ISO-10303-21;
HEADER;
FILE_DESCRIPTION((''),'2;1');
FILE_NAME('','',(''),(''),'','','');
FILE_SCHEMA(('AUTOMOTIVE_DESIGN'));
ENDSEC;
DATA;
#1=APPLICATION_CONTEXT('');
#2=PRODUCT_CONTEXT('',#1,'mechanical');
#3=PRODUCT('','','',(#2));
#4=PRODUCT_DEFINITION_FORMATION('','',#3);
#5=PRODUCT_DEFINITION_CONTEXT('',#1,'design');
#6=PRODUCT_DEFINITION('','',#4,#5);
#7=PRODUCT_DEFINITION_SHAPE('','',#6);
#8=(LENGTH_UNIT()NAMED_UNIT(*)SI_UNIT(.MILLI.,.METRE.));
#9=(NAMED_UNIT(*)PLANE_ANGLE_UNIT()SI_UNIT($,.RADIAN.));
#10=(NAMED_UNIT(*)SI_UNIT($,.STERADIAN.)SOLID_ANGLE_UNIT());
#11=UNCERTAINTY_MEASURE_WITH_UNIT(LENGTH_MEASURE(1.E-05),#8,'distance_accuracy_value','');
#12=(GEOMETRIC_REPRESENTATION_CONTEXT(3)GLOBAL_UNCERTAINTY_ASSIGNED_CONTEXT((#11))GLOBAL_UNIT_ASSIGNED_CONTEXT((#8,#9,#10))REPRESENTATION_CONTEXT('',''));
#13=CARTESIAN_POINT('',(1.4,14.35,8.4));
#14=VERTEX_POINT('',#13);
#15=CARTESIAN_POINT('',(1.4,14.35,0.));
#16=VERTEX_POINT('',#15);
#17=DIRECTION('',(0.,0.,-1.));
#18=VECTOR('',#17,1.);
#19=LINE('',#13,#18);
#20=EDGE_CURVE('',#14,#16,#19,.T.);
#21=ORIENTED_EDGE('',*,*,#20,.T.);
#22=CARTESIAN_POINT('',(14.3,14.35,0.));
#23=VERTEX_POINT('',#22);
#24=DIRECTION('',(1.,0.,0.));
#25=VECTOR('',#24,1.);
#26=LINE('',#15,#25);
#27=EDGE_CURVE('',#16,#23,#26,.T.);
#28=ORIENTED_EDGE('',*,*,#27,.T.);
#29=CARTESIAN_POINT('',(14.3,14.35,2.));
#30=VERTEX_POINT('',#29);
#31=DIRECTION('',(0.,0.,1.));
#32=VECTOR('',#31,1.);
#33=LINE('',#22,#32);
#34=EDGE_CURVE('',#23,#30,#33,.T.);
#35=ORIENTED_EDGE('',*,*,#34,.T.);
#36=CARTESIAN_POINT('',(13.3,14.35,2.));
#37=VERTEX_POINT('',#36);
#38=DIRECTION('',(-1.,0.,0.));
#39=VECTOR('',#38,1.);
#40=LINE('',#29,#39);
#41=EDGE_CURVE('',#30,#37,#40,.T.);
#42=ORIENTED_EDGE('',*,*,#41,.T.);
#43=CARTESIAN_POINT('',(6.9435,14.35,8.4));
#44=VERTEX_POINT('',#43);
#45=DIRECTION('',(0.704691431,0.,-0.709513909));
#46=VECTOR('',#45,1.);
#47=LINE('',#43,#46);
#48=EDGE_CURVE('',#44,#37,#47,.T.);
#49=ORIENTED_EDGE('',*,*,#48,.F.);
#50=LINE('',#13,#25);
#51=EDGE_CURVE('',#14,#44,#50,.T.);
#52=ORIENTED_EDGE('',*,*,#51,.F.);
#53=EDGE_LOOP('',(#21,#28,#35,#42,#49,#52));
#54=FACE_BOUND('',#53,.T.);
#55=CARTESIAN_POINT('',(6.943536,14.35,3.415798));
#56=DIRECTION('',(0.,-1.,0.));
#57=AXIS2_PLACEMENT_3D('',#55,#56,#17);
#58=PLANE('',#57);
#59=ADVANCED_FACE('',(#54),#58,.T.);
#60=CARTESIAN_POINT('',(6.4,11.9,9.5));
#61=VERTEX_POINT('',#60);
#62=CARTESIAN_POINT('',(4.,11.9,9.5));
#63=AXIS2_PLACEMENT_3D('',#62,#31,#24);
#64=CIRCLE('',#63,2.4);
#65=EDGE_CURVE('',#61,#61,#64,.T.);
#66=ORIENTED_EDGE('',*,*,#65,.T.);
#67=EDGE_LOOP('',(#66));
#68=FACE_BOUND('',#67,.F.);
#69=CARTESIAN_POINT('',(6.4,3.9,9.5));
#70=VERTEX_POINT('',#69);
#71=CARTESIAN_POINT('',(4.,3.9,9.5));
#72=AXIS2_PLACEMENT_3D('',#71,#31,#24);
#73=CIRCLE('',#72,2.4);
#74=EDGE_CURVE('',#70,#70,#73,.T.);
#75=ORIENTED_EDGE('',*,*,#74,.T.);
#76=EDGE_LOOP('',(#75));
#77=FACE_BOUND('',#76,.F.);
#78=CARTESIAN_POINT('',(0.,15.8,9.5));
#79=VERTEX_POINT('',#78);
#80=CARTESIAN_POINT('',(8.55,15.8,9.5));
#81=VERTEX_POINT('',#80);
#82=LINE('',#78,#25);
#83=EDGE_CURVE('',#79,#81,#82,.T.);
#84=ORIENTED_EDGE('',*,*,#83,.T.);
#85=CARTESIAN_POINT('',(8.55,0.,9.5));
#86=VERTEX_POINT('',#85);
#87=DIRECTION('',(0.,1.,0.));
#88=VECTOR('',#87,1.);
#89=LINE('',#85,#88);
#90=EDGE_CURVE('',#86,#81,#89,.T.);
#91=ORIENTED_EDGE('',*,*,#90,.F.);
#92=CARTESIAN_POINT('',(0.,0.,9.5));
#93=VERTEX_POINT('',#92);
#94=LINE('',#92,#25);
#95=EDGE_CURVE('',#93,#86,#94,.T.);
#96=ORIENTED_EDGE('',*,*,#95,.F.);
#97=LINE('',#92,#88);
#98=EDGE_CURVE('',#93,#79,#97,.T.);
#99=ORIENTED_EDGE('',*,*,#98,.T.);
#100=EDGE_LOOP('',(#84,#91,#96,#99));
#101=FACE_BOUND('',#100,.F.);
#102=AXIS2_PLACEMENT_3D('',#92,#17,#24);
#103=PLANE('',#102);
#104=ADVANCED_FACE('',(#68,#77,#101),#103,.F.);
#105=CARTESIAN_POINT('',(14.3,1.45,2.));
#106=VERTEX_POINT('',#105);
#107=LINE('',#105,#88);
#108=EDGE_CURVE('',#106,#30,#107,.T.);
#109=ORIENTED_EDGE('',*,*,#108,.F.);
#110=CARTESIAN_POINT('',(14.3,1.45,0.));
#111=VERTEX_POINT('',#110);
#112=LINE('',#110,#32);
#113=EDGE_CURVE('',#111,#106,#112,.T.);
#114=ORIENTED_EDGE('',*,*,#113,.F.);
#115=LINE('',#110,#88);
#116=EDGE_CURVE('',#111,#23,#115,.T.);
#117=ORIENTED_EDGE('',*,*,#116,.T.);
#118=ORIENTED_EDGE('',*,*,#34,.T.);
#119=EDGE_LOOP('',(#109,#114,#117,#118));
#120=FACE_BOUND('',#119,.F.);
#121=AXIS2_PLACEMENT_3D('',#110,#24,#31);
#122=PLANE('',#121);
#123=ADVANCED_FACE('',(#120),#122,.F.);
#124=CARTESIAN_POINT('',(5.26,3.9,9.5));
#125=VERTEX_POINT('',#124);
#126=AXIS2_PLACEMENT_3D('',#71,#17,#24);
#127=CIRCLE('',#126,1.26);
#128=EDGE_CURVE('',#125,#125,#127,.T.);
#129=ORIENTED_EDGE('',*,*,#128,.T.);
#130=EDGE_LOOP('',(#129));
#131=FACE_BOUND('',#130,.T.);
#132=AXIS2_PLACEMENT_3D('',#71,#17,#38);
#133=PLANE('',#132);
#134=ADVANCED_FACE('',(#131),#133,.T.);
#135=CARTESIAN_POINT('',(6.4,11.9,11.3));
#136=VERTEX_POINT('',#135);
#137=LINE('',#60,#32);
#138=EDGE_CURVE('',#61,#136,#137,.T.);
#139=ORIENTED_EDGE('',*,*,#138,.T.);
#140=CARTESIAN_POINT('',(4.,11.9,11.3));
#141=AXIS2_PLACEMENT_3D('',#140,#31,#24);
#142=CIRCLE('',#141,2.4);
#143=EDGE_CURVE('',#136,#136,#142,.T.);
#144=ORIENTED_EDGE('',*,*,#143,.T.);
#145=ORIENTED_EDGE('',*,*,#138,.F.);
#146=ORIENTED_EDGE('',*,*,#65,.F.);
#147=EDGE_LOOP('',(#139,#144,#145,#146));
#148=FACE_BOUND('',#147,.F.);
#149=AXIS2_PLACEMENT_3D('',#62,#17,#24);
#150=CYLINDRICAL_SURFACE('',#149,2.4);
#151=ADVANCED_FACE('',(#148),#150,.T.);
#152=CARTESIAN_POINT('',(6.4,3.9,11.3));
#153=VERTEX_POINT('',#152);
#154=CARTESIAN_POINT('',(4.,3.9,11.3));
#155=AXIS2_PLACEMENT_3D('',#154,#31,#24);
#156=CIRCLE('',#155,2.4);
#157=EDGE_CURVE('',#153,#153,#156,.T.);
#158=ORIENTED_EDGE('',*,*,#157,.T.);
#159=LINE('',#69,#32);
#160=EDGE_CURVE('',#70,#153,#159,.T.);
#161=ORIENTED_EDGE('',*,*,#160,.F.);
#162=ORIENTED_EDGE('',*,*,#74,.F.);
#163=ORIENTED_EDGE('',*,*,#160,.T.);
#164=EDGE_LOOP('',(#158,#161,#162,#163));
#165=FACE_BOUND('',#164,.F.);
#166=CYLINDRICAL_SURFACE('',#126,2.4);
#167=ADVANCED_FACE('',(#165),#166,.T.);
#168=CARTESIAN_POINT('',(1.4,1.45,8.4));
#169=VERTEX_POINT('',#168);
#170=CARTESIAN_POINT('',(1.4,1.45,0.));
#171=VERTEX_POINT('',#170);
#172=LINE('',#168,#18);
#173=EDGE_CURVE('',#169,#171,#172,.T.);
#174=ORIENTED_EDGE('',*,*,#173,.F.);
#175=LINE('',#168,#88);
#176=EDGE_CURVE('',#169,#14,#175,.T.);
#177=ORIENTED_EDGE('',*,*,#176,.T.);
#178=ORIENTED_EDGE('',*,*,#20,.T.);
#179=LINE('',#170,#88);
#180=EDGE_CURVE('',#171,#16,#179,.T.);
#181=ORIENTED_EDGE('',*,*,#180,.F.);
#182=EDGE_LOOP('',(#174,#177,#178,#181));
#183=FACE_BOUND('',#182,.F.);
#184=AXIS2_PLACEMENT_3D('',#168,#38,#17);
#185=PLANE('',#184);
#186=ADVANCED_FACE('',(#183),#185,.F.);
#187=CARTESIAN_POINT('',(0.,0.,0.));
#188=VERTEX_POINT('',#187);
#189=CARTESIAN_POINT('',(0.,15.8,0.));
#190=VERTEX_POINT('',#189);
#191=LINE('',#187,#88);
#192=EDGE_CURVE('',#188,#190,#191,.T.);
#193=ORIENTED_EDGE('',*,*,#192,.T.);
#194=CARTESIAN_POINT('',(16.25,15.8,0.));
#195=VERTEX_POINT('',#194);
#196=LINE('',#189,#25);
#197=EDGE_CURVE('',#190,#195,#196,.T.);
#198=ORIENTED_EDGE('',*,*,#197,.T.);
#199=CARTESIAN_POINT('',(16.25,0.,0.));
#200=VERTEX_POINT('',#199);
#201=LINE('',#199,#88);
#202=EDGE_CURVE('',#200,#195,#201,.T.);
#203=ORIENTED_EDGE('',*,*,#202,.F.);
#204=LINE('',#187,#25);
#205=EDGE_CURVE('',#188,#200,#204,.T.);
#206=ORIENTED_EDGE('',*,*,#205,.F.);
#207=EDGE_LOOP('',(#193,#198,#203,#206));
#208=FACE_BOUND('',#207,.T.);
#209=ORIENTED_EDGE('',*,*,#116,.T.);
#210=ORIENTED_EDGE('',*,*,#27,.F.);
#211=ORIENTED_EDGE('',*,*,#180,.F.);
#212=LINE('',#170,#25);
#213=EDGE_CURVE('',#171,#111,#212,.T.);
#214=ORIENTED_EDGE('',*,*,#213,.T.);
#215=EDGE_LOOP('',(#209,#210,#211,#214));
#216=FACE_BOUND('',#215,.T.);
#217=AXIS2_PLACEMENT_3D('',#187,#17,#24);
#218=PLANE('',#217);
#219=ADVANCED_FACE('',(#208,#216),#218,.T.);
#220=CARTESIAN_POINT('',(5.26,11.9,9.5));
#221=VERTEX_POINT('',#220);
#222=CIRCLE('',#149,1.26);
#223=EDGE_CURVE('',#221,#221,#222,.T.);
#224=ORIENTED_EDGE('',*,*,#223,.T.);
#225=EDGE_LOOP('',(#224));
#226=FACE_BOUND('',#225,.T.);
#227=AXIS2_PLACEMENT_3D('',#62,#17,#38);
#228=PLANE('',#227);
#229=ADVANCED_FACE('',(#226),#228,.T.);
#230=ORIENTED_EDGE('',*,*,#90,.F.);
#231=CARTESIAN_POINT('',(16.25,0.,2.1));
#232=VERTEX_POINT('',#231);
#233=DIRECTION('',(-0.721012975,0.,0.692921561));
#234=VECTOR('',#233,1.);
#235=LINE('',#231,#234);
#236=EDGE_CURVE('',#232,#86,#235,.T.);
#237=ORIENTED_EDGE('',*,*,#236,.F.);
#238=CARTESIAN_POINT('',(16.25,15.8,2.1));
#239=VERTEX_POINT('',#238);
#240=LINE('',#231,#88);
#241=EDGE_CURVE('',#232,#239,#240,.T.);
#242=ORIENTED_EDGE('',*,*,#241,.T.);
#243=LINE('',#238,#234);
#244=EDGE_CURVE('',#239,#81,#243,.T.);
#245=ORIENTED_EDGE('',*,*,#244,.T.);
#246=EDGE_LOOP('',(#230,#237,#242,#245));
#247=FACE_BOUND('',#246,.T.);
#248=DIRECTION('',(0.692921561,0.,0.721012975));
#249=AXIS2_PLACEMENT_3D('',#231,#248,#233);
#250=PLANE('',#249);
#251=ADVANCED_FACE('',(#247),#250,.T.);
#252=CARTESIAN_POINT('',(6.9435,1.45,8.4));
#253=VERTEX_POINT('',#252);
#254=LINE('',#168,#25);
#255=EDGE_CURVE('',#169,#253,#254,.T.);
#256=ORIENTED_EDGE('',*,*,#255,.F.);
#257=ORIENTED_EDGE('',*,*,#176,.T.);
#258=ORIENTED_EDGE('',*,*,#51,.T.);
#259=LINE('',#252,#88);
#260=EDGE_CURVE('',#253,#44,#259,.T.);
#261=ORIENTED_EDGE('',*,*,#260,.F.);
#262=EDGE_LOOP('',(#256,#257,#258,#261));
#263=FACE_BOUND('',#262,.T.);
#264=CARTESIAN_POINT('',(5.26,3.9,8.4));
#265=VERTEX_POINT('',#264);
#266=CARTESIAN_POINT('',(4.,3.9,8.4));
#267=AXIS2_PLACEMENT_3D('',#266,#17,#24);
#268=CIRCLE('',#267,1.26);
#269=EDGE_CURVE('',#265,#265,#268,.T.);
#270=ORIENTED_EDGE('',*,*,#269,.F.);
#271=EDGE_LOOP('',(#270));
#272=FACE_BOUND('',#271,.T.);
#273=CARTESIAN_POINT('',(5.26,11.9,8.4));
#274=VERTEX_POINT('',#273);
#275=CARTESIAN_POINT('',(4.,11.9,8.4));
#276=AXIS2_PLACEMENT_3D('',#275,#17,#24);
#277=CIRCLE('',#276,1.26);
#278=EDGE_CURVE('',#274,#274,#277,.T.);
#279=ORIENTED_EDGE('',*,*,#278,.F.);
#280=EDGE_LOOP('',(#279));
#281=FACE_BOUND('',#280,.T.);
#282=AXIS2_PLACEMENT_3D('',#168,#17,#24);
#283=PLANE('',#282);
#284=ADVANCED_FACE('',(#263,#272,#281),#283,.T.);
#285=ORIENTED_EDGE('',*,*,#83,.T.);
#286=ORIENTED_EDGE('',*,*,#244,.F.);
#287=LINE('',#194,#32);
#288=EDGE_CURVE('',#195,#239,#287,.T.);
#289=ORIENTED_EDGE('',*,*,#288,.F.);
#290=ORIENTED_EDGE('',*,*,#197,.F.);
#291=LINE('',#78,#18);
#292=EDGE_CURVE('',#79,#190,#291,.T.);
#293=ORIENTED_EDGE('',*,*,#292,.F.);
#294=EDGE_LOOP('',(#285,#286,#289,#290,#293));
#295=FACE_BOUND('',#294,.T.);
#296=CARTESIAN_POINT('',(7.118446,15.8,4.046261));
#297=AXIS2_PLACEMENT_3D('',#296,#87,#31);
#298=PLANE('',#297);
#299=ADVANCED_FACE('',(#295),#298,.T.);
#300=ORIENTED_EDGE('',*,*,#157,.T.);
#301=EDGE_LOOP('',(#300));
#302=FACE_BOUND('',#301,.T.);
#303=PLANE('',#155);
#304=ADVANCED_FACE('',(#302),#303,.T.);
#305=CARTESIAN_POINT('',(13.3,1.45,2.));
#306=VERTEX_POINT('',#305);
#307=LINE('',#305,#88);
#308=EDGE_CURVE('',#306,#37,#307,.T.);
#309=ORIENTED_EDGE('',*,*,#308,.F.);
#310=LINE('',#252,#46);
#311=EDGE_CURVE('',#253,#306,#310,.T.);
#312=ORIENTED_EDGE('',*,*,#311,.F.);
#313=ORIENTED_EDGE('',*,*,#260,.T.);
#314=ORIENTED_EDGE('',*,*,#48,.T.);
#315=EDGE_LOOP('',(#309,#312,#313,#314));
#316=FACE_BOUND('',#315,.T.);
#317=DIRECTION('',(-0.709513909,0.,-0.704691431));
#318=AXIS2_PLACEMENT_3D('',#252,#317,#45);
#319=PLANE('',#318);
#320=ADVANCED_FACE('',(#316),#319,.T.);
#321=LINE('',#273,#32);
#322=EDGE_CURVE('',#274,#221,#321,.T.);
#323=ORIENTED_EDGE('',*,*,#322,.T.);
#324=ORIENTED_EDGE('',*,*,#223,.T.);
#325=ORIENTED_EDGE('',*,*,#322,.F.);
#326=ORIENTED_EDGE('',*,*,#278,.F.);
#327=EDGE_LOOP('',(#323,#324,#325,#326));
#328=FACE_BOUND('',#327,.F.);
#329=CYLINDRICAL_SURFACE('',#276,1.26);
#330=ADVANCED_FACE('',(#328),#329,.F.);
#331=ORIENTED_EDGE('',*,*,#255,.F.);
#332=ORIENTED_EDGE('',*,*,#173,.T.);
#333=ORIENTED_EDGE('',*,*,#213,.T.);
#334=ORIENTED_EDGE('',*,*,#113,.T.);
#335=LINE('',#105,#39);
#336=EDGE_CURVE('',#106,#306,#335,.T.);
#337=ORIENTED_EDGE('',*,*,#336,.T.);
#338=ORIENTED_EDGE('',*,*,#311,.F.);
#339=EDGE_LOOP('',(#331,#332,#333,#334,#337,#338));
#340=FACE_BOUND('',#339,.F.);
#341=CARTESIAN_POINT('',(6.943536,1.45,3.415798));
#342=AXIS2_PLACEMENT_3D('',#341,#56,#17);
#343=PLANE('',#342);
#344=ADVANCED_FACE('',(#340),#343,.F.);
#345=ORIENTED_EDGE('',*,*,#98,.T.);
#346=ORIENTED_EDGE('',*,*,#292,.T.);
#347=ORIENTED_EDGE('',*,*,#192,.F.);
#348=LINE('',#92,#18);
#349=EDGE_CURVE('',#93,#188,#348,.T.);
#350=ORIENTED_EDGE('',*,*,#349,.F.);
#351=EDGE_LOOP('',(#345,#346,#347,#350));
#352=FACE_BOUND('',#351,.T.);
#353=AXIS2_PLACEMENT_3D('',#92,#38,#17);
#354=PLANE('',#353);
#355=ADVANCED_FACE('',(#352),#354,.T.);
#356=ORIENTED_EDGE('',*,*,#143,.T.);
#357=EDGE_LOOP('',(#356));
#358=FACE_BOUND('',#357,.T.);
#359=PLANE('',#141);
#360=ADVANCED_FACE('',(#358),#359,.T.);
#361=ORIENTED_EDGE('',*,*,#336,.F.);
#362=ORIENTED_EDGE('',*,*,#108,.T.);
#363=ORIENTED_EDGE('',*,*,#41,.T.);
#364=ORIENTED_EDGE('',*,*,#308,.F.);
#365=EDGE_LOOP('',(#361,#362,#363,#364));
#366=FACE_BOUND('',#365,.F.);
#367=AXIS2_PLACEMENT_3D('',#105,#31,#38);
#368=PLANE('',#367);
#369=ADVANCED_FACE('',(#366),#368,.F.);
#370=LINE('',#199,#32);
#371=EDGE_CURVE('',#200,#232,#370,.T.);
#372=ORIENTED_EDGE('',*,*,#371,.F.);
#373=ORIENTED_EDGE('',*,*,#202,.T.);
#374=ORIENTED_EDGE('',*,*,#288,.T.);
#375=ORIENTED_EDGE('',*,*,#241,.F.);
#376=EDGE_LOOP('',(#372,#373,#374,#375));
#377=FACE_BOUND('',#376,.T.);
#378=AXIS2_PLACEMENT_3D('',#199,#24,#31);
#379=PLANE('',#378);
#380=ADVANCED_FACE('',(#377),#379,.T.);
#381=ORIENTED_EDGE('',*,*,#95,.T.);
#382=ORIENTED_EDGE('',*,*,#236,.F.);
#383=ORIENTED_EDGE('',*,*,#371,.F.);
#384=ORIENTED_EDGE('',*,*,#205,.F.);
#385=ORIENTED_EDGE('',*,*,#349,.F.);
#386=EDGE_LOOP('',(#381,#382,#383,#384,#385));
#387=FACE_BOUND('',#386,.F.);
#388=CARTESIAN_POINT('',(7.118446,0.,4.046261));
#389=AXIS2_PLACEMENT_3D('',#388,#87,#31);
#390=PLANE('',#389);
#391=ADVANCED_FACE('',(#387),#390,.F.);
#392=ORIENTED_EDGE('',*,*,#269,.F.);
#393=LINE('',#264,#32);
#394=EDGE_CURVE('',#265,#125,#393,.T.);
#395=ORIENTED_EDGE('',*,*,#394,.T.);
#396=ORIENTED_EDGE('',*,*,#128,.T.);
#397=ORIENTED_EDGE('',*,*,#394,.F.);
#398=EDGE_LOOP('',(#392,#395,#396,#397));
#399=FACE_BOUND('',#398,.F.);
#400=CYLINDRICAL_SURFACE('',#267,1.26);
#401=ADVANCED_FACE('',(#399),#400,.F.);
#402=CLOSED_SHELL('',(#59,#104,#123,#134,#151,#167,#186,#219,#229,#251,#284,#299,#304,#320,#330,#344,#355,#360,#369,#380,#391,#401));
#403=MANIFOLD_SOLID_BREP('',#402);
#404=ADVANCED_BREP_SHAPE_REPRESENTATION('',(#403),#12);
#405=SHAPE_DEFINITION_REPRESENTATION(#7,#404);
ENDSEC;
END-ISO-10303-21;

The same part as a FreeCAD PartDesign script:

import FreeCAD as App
import Part
import Sketcher
from FreeCAD import Vector


def add_polygon(sketch, points):
    """Adds a closed chain of lines whose ends are joined by coincident constraints."""
    first, n = sketch.GeometryCount, len(points)
    for a, b in zip(points, points[1:] + points[:1]):
        sketch.addGeometry(Part.LineSegment(App.Vector(*a, 0), App.Vector(*b, 0)), False)
    for i in range(n):
        sketch.addConstraint(Sketcher.Constraint("Coincident", first + i, 2, first + (i + 1) % n, 1))

doc = App.newDocument("Part")
params = doc.addObject("Spreadsheet::Sheet", "Params")
for row, (alias, value) in enumerate([
    ("sketch1_height", "9.5 mm"),
    ("sketch1_height2", "2.1 mm"),
    ("sketch1_width", "8.55 mm"),
    ("sketch1_width2", "16.25 mm"),
    ("pad1_length", "15.8 mm"),
    ("sketch2_width", "1 mm"),
    ("sketch2_height", "2 mm"),
    ("sketch2_width2", "12.9 mm"),
    ("sketch2_height2", "8.4 mm"),
    ("pocket1_length", "12.9 mm"),
    ("sketch3_diameter", "4.8 mm"),
    ("pad2_length", "1.8 mm"),
    ("sketch4_diameter", "2.52 mm"),
    ("pocket2_length", "1.1 mm"),
], start=1):
    params.set(f"A{row}", alias)
    params.set(f"B{row}", "=" + value)
    params.setAlias(f"B{row}", alias)

body = doc.addObject("PartDesign::Body", "Body")

# Sketch on XZ plane
sketch1 = doc.addObject("Sketcher::SketchObject", "Sketch")
body.addObject(sketch1)
sketch1.AttachmentSupport = (doc.XZ_Plane, [""])
sketch1.MapMode = "FlatFace"
add_polygon(sketch1, [(8.55, 9.5), (0, 9.5), (0, 0), (16.25, 0), (16.25, 2.1)])  # lines 0-4
sketch1.addConstraint([
    Sketcher.Constraint("Horizontal", 0),
    Sketcher.Constraint("Vertical", 1),
    Sketcher.Constraint("Horizontal", 2),
    Sketcher.Constraint("Vertical", 3),
    Sketcher.Constraint("Coincident", 1, 2, -1, 1),
    Sketcher.Constraint("DistanceY", 1, 2, 1, 1, 9.5),
    Sketcher.Constraint("DistanceY", 3, 1, 3, 2, 2.1),
    Sketcher.Constraint("DistanceX", 0, 2, 0, 1, 8.55),
    Sketcher.Constraint("DistanceX", 2, 1, 2, 2, 16.25),
])
sketch1.setExpression("Constraints[10]", "Params.sketch1_height")
sketch1.setExpression("Constraints[11]", "Params.sketch1_height2")
sketch1.setExpression("Constraints[12]", "Params.sketch1_width")
sketch1.setExpression("Constraints[13]", "Params.sketch1_width2")
pad1 = doc.addObject("PartDesign::Pad", "Pad")
body.addObject(pad1)
pad1.Profile = sketch1
pad1.setExpression("Length", "Params.pad1_length")
pad1.Reversed = True

# Sketch on XZ plane
sketch2 = doc.addObject("Sketcher::SketchObject", "Sketch001")
body.addObject(sketch2)
sketch2.AttachmentSupport = (doc.XZ_Plane, [""])
sketch2.MapMode = "FlatFace"
sketch2.AttachmentOffset = App.Placement(Vector(0, 0, -1.45), App.Rotation())
add_polygon(sketch2, [(1.4, 0), (14.3, 0), (14.3, 2), (13.3, 2), (6.9435, 8.4), (1.4, 8.4)])  # lines 0-5
sketch2.addConstraint([
    Sketcher.Constraint("Horizontal", 0),
    Sketcher.Constraint("Vertical", 1),
    Sketcher.Constraint("Horizontal", 2),
    Sketcher.Constraint("Horizontal", 4),
    Sketcher.Constraint("Vertical", 5),
    Sketcher.Constraint("PointOnObject", 0, 2, -1),
    Sketcher.Constraint("DistanceX", 2, 2, 2, 1, 1.0),
    Sketcher.Constraint("DistanceY", 1, 1, 1, 2, 2.0),
    Sketcher.Constraint("DistanceX", 0, 1, 0, 2, 12.9),
    Sketcher.Constraint("DistanceY", 5, 2, 5, 1, 8.4),
    Sketcher.Constraint("DistanceX", -1, 1, 0, 2, 14.3),
    Sketcher.Constraint("DistanceX", 4, 2, 4, 1, 5.5435),
])
sketch2.setExpression("Constraints[12]", "Params.sketch2_width")
sketch2.setExpression("Constraints[13]", "Params.sketch2_height")
sketch2.setExpression("Constraints[14]", "Params.sketch2_width2")
sketch2.setExpression("Constraints[15]", "Params.sketch2_height2")
pocket1 = doc.addObject("PartDesign::Pocket", "Pocket")
body.addObject(pocket1)
pocket1.Profile = sketch2
pocket1.setExpression("Length", "Params.pocket1_length")

# Sketch on XY plane
sketch3 = doc.addObject("Sketcher::SketchObject", "Sketch002")
body.addObject(sketch3)
sketch3.AttachmentSupport = (doc.XY_Plane, [""])
sketch3.MapMode = "FlatFace"
sketch3.AttachmentOffset = App.Placement(Vector(0, 0, 9.5), App.Rotation())
sketch3.addGeometry([
    Part.Circle(Vector(4, 11.9, 0), Vector(0, 0, 1), 2.4),
    Part.Circle(Vector(4, 3.9, 0), Vector(0, 0, 1), 2.4),
], False)
sketch3.addConstraint([
    Sketcher.Constraint("Equal", 0, 1),
    Sketcher.Constraint("Vertical", 0, 3, 1, 3),
    Sketcher.Constraint("Diameter", 0, 4.8),
    Sketcher.Constraint("DistanceX", -1, 1, 0, 3, 4.0),
    Sketcher.Constraint("DistanceY", 1, 3, 0, 3, 8.0),
    Sketcher.Constraint("DistanceY", -1, 1, 0, 3, 11.9),
])
sketch3.setExpression("Constraints[2]", "Params.sketch3_diameter")
pad2 = doc.addObject("PartDesign::Pad", "Pad001")
body.addObject(pad2)
pad2.Profile = sketch3
pad2.setExpression("Length", "Params.pad2_length")

# Sketch on XY plane
sketch4 = doc.addObject("Sketcher::SketchObject", "Sketch003")
body.addObject(sketch4)
sketch4.AttachmentSupport = (doc.XY_Plane, [""])
sketch4.MapMode = "FlatFace"
sketch4.AttachmentOffset = App.Placement(Vector(0, 0, 8.4), App.Rotation())
sketch4.addGeometry([
    Part.Circle(Vector(4, 11.9, 0), Vector(0, 0, 1), 1.26),
    Part.Circle(Vector(4, 3.9, 0), Vector(0, 0, 1), 1.26),
], False)
sketch4.addConstraint([
    Sketcher.Constraint("Equal", 0, 1),
    Sketcher.Constraint("Vertical", 0, 3, 1, 3),
    Sketcher.Constraint("Diameter", 0, 2.52),
    Sketcher.Constraint("DistanceX", -1, 1, 0, 3, 4.0),
    Sketcher.Constraint("DistanceY", 1, 3, 0, 3, 8.0),
    Sketcher.Constraint("DistanceY", -1, 1, 0, 3, 11.9),
])
sketch4.setExpression("Constraints[2]", "Params.sketch4_diameter")
pocket2 = doc.addObject("PartDesign::Pocket", "Pocket001")
body.addObject(pocket2)
pocket2.Profile = sketch4
pocket2.setExpression("Length", "Params.pocket2_length")
pocket2.Reversed = True

doc.recompute()
